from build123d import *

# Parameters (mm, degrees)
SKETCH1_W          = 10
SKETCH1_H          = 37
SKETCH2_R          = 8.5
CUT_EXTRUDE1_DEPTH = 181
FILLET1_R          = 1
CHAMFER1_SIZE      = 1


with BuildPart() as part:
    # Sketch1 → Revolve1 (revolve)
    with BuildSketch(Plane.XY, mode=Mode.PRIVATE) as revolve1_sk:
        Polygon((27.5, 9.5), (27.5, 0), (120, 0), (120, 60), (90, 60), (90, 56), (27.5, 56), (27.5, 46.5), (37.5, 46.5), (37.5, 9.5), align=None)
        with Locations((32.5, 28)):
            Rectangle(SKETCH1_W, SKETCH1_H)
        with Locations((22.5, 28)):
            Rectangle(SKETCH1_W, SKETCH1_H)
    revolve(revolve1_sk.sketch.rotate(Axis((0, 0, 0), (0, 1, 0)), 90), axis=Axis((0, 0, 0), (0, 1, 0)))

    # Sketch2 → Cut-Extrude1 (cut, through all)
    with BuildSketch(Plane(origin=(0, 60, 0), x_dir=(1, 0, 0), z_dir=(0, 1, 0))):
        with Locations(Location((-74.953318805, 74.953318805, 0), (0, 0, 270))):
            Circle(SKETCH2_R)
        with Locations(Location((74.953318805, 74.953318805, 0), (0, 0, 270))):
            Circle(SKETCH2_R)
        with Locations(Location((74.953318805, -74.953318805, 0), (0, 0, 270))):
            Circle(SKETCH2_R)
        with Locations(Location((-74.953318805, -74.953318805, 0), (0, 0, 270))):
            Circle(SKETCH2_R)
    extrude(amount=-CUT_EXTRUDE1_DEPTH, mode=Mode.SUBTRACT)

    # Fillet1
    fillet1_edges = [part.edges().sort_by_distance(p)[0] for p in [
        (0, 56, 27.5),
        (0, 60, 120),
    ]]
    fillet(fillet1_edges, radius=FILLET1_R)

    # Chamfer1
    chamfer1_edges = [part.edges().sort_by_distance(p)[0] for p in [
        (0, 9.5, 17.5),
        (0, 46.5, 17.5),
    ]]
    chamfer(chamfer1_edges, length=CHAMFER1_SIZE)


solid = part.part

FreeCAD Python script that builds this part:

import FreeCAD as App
import Part
import Sketcher

V = App.Vector


def edges_at(feature, points):
    """Names of the edges that pass closest to the given points."""
    edges = feature.Shape.Edges
    near = lambda p: min(range(len(edges)), key=lambda i: edges[i].distToShape(Part.Vertex(*p))[0])
    return sorted({f"Edge{near(p) + 1}" for p in points})

doc = App.newDocument("Part")
body = doc.addObject("PartDesign::Body", "Body")

sketch1 = doc.addObject("Sketcher::SketchObject", "Sketch")
body.addObject(sketch1)
sketch1.AttachmentSupport = (doc.XY_Plane, [""])
sketch1.MapMode = "FlatFace"
sketch1.addGeometry(Part.LineSegment(V(27.5, 0, 0), V(120, 0, 0)), False)
sketch1.addGeometry(Part.LineSegment(V(120, 0, 0), V(120, 60, 0)), False)
sketch1.addGeometry(Part.LineSegment(V(120, 60, 0), V(90, 60, 0)), False)
sketch1.addGeometry(Part.LineSegment(V(90, 60, 0), V(90, 56, 0)), False)
sketch1.addGeometry(Part.LineSegment(V(90, 56, 0), V(27.5, 56, 0)), False)
sketch1.addGeometry(Part.LineSegment(V(27.5, 56, 0), V(27.5, 46.5, 0)), False)
sketch1.addGeometry(Part.LineSegment(V(27.5, 46.5, 0), V(17.5, 46.5, 0)), False)
sketch1.addGeometry(Part.LineSegment(V(17.5, 46.5, 0), V(17.5, 9.5, 0)), False)
sketch1.addGeometry(Part.LineSegment(V(17.5, 9.5, 0), V(27.5, 9.5, 0)), False)
sketch1.addGeometry(Part.LineSegment(V(27.5, 9.5, 0), V(27.5, 0, 0)), False)
sketch1.addConstraint(Sketcher.Constraint("Coincident", 0, 2, 1, 1))
sketch1.addConstraint(Sketcher.Constraint("Coincident", 1, 2, 2, 1))
sketch1.addConstraint(Sketcher.Constraint("Coincident", 2, 2, 3, 1))
sketch1.addConstraint(Sketcher.Constraint("Coincident", 3, 2, 4, 1))
sketch1.addConstraint(Sketcher.Constraint("Coincident", 4, 2, 5, 1))
sketch1.addConstraint(Sketcher.Constraint("Coincident", 5, 2, 6, 1))
sketch1.addConstraint(Sketcher.Constraint("Coincident", 6, 2, 7, 1))
sketch1.addConstraint(Sketcher.Constraint("Coincident", 7, 2, 8, 1))
sketch1.addConstraint(Sketcher.Constraint("Coincident", 8, 2, 9, 1))
sketch1.addConstraint(Sketcher.Constraint("Coincident", 9, 2, 0, 1))
sketch1.addConstraint(Sketcher.Constraint("Horizontal", 0))
sketch1.addConstraint(Sketcher.Constraint("Vertical", 1))
sketch1.addConstraint(Sketcher.Constraint("Horizontal", 2))
sketch1.addConstraint(Sketcher.Constraint("Vertical", 3))
sketch1.addConstraint(Sketcher.Constraint("Horizontal", 4))
sketch1.addConstraint(Sketcher.Constraint("Vertical", 5))
sketch1.addConstraint(Sketcher.Constraint("Horizontal", 6))
sketch1.addConstraint(Sketcher.Constraint("Vertical", 7))
sketch1.addConstraint(Sketcher.Constraint("Horizontal", 8))
sketch1.addConstraint(Sketcher.Constraint("Vertical", 9))
sketch1.addConstraint(Sketcher.Constraint("PointOnObject", 0, 2, -1))
sketch1.addConstraint(Sketcher.Constraint("Vertical", 5, 2, 8, 2))
sketch1.addConstraint(Sketcher.Constraint("Equal", 5, 9))
sketch1.addConstraint(Sketcher.Constraint("DistanceX", 2, 2, 2, 1, 30.0))
sketch1.addConstraint(Sketcher.Constraint("DistanceX", 6, 2, 6, 1, 10.0))
sketch1.addConstraint(Sketcher.Constraint("DistanceY", 1, 1, 1, 2, 60.0))
sketch1.addConstraint(Sketcher.Constraint("DistanceY", 3, 2, 3, 1, 4.0))
sketch1.addConstraint(Sketcher.Constraint("DistanceY", 7, 2, 7, 1, 37.0))
sketch1.addConstraint(Sketcher.Constraint("DistanceX", 0, 1, 0, 2, 92.5))
sketch1.addConstraint(Sketcher.Constraint("DistanceX", -1, 1, 0, 2, 120.0))
revolution = doc.addObject("PartDesign::Revolution", "Revolution")
body.addObject(revolution)
revolution.Profile = sketch1
revolution.ReferenceAxis = (sketch1, ["V_Axis"])
revolution.Angle = 360

sketch2 = doc.addObject("Sketcher::SketchObject", "Sketch001")
body.addObject(sketch2)
sketch2.AttachmentSupport = (doc.XZ_Plane, [""])
sketch2.MapMode = "FlatFace"
sketch2.AttachmentOffset = App.Placement(V(0, 0, -60), App.Rotation())
sketch2.addGeometry(Part.Circle(V(-75, -75, 0), V(0, 0, 1), 8), False)
sketch2.addGeometry(Part.Circle(V(75, -75, 0), V(0, 0, 1), 8), False)
sketch2.addGeometry(Part.Circle(V(75, 75, 0), V(0, 0, 1), 8), False)
sketch2.addGeometry(Part.Circle(V(-75, 75, 0), V(0, 0, 1), 8), False)
sketch2.addConstraint(Sketcher.Constraint("Equal", 0, 1))
sketch2.addConstraint(Sketcher.Constraint("Equal", 1, 2))
sketch2.addConstraint(Sketcher.Constraint("Equal", 2, 3))
sketch2.addConstraint(Sketcher.Constraint("Symmetric", 0, 3, 2, 3, -1, 1))
sketch2.addConstraint(Sketcher.Constraint("Symmetric", 1, 3, 3, 3, -1, 1))
sketch2.addConstraint(Sketcher.Constraint("Symmetric", 0, 3, 1, 3, -2))
sketch2.addConstraint(Sketcher.Constraint("Diameter", 0, 17.0))
sketch2.addConstraint(Sketcher.Constraint("DistanceX", 0, 3, -1, 1, 74.953319))
sketch2.addConstraint(Sketcher.Constraint("DistanceY", 0, 3, -1, 1, 74.953319))
pocket1 = doc.addObject("PartDesign::Pocket", "Pocket")
body.addObject(pocket1)
pocket1.Profile = sketch2
pocket1.Type = "ThroughAll"
pocket1.Reversed = True
doc.recompute()

fillet = doc.addObject("PartDesign::Fillet", "Fillet")
body.addObject(fillet)
fillet.Base = (pocket1, edges_at(pocket1, [(0, 56, 27.5), (0, 60, 120)]))
fillet.Radius = 1
doc.recompute()

chamfer = doc.addObject("PartDesign::Chamfer", "Chamfer")
body.addObject(chamfer)
chamfer.Base = (fillet, edges_at(fillet, [(0, 9.5, 17.5), (0, 46.5, 17.5)]))
chamfer.Size = 1

doc.recompute()
